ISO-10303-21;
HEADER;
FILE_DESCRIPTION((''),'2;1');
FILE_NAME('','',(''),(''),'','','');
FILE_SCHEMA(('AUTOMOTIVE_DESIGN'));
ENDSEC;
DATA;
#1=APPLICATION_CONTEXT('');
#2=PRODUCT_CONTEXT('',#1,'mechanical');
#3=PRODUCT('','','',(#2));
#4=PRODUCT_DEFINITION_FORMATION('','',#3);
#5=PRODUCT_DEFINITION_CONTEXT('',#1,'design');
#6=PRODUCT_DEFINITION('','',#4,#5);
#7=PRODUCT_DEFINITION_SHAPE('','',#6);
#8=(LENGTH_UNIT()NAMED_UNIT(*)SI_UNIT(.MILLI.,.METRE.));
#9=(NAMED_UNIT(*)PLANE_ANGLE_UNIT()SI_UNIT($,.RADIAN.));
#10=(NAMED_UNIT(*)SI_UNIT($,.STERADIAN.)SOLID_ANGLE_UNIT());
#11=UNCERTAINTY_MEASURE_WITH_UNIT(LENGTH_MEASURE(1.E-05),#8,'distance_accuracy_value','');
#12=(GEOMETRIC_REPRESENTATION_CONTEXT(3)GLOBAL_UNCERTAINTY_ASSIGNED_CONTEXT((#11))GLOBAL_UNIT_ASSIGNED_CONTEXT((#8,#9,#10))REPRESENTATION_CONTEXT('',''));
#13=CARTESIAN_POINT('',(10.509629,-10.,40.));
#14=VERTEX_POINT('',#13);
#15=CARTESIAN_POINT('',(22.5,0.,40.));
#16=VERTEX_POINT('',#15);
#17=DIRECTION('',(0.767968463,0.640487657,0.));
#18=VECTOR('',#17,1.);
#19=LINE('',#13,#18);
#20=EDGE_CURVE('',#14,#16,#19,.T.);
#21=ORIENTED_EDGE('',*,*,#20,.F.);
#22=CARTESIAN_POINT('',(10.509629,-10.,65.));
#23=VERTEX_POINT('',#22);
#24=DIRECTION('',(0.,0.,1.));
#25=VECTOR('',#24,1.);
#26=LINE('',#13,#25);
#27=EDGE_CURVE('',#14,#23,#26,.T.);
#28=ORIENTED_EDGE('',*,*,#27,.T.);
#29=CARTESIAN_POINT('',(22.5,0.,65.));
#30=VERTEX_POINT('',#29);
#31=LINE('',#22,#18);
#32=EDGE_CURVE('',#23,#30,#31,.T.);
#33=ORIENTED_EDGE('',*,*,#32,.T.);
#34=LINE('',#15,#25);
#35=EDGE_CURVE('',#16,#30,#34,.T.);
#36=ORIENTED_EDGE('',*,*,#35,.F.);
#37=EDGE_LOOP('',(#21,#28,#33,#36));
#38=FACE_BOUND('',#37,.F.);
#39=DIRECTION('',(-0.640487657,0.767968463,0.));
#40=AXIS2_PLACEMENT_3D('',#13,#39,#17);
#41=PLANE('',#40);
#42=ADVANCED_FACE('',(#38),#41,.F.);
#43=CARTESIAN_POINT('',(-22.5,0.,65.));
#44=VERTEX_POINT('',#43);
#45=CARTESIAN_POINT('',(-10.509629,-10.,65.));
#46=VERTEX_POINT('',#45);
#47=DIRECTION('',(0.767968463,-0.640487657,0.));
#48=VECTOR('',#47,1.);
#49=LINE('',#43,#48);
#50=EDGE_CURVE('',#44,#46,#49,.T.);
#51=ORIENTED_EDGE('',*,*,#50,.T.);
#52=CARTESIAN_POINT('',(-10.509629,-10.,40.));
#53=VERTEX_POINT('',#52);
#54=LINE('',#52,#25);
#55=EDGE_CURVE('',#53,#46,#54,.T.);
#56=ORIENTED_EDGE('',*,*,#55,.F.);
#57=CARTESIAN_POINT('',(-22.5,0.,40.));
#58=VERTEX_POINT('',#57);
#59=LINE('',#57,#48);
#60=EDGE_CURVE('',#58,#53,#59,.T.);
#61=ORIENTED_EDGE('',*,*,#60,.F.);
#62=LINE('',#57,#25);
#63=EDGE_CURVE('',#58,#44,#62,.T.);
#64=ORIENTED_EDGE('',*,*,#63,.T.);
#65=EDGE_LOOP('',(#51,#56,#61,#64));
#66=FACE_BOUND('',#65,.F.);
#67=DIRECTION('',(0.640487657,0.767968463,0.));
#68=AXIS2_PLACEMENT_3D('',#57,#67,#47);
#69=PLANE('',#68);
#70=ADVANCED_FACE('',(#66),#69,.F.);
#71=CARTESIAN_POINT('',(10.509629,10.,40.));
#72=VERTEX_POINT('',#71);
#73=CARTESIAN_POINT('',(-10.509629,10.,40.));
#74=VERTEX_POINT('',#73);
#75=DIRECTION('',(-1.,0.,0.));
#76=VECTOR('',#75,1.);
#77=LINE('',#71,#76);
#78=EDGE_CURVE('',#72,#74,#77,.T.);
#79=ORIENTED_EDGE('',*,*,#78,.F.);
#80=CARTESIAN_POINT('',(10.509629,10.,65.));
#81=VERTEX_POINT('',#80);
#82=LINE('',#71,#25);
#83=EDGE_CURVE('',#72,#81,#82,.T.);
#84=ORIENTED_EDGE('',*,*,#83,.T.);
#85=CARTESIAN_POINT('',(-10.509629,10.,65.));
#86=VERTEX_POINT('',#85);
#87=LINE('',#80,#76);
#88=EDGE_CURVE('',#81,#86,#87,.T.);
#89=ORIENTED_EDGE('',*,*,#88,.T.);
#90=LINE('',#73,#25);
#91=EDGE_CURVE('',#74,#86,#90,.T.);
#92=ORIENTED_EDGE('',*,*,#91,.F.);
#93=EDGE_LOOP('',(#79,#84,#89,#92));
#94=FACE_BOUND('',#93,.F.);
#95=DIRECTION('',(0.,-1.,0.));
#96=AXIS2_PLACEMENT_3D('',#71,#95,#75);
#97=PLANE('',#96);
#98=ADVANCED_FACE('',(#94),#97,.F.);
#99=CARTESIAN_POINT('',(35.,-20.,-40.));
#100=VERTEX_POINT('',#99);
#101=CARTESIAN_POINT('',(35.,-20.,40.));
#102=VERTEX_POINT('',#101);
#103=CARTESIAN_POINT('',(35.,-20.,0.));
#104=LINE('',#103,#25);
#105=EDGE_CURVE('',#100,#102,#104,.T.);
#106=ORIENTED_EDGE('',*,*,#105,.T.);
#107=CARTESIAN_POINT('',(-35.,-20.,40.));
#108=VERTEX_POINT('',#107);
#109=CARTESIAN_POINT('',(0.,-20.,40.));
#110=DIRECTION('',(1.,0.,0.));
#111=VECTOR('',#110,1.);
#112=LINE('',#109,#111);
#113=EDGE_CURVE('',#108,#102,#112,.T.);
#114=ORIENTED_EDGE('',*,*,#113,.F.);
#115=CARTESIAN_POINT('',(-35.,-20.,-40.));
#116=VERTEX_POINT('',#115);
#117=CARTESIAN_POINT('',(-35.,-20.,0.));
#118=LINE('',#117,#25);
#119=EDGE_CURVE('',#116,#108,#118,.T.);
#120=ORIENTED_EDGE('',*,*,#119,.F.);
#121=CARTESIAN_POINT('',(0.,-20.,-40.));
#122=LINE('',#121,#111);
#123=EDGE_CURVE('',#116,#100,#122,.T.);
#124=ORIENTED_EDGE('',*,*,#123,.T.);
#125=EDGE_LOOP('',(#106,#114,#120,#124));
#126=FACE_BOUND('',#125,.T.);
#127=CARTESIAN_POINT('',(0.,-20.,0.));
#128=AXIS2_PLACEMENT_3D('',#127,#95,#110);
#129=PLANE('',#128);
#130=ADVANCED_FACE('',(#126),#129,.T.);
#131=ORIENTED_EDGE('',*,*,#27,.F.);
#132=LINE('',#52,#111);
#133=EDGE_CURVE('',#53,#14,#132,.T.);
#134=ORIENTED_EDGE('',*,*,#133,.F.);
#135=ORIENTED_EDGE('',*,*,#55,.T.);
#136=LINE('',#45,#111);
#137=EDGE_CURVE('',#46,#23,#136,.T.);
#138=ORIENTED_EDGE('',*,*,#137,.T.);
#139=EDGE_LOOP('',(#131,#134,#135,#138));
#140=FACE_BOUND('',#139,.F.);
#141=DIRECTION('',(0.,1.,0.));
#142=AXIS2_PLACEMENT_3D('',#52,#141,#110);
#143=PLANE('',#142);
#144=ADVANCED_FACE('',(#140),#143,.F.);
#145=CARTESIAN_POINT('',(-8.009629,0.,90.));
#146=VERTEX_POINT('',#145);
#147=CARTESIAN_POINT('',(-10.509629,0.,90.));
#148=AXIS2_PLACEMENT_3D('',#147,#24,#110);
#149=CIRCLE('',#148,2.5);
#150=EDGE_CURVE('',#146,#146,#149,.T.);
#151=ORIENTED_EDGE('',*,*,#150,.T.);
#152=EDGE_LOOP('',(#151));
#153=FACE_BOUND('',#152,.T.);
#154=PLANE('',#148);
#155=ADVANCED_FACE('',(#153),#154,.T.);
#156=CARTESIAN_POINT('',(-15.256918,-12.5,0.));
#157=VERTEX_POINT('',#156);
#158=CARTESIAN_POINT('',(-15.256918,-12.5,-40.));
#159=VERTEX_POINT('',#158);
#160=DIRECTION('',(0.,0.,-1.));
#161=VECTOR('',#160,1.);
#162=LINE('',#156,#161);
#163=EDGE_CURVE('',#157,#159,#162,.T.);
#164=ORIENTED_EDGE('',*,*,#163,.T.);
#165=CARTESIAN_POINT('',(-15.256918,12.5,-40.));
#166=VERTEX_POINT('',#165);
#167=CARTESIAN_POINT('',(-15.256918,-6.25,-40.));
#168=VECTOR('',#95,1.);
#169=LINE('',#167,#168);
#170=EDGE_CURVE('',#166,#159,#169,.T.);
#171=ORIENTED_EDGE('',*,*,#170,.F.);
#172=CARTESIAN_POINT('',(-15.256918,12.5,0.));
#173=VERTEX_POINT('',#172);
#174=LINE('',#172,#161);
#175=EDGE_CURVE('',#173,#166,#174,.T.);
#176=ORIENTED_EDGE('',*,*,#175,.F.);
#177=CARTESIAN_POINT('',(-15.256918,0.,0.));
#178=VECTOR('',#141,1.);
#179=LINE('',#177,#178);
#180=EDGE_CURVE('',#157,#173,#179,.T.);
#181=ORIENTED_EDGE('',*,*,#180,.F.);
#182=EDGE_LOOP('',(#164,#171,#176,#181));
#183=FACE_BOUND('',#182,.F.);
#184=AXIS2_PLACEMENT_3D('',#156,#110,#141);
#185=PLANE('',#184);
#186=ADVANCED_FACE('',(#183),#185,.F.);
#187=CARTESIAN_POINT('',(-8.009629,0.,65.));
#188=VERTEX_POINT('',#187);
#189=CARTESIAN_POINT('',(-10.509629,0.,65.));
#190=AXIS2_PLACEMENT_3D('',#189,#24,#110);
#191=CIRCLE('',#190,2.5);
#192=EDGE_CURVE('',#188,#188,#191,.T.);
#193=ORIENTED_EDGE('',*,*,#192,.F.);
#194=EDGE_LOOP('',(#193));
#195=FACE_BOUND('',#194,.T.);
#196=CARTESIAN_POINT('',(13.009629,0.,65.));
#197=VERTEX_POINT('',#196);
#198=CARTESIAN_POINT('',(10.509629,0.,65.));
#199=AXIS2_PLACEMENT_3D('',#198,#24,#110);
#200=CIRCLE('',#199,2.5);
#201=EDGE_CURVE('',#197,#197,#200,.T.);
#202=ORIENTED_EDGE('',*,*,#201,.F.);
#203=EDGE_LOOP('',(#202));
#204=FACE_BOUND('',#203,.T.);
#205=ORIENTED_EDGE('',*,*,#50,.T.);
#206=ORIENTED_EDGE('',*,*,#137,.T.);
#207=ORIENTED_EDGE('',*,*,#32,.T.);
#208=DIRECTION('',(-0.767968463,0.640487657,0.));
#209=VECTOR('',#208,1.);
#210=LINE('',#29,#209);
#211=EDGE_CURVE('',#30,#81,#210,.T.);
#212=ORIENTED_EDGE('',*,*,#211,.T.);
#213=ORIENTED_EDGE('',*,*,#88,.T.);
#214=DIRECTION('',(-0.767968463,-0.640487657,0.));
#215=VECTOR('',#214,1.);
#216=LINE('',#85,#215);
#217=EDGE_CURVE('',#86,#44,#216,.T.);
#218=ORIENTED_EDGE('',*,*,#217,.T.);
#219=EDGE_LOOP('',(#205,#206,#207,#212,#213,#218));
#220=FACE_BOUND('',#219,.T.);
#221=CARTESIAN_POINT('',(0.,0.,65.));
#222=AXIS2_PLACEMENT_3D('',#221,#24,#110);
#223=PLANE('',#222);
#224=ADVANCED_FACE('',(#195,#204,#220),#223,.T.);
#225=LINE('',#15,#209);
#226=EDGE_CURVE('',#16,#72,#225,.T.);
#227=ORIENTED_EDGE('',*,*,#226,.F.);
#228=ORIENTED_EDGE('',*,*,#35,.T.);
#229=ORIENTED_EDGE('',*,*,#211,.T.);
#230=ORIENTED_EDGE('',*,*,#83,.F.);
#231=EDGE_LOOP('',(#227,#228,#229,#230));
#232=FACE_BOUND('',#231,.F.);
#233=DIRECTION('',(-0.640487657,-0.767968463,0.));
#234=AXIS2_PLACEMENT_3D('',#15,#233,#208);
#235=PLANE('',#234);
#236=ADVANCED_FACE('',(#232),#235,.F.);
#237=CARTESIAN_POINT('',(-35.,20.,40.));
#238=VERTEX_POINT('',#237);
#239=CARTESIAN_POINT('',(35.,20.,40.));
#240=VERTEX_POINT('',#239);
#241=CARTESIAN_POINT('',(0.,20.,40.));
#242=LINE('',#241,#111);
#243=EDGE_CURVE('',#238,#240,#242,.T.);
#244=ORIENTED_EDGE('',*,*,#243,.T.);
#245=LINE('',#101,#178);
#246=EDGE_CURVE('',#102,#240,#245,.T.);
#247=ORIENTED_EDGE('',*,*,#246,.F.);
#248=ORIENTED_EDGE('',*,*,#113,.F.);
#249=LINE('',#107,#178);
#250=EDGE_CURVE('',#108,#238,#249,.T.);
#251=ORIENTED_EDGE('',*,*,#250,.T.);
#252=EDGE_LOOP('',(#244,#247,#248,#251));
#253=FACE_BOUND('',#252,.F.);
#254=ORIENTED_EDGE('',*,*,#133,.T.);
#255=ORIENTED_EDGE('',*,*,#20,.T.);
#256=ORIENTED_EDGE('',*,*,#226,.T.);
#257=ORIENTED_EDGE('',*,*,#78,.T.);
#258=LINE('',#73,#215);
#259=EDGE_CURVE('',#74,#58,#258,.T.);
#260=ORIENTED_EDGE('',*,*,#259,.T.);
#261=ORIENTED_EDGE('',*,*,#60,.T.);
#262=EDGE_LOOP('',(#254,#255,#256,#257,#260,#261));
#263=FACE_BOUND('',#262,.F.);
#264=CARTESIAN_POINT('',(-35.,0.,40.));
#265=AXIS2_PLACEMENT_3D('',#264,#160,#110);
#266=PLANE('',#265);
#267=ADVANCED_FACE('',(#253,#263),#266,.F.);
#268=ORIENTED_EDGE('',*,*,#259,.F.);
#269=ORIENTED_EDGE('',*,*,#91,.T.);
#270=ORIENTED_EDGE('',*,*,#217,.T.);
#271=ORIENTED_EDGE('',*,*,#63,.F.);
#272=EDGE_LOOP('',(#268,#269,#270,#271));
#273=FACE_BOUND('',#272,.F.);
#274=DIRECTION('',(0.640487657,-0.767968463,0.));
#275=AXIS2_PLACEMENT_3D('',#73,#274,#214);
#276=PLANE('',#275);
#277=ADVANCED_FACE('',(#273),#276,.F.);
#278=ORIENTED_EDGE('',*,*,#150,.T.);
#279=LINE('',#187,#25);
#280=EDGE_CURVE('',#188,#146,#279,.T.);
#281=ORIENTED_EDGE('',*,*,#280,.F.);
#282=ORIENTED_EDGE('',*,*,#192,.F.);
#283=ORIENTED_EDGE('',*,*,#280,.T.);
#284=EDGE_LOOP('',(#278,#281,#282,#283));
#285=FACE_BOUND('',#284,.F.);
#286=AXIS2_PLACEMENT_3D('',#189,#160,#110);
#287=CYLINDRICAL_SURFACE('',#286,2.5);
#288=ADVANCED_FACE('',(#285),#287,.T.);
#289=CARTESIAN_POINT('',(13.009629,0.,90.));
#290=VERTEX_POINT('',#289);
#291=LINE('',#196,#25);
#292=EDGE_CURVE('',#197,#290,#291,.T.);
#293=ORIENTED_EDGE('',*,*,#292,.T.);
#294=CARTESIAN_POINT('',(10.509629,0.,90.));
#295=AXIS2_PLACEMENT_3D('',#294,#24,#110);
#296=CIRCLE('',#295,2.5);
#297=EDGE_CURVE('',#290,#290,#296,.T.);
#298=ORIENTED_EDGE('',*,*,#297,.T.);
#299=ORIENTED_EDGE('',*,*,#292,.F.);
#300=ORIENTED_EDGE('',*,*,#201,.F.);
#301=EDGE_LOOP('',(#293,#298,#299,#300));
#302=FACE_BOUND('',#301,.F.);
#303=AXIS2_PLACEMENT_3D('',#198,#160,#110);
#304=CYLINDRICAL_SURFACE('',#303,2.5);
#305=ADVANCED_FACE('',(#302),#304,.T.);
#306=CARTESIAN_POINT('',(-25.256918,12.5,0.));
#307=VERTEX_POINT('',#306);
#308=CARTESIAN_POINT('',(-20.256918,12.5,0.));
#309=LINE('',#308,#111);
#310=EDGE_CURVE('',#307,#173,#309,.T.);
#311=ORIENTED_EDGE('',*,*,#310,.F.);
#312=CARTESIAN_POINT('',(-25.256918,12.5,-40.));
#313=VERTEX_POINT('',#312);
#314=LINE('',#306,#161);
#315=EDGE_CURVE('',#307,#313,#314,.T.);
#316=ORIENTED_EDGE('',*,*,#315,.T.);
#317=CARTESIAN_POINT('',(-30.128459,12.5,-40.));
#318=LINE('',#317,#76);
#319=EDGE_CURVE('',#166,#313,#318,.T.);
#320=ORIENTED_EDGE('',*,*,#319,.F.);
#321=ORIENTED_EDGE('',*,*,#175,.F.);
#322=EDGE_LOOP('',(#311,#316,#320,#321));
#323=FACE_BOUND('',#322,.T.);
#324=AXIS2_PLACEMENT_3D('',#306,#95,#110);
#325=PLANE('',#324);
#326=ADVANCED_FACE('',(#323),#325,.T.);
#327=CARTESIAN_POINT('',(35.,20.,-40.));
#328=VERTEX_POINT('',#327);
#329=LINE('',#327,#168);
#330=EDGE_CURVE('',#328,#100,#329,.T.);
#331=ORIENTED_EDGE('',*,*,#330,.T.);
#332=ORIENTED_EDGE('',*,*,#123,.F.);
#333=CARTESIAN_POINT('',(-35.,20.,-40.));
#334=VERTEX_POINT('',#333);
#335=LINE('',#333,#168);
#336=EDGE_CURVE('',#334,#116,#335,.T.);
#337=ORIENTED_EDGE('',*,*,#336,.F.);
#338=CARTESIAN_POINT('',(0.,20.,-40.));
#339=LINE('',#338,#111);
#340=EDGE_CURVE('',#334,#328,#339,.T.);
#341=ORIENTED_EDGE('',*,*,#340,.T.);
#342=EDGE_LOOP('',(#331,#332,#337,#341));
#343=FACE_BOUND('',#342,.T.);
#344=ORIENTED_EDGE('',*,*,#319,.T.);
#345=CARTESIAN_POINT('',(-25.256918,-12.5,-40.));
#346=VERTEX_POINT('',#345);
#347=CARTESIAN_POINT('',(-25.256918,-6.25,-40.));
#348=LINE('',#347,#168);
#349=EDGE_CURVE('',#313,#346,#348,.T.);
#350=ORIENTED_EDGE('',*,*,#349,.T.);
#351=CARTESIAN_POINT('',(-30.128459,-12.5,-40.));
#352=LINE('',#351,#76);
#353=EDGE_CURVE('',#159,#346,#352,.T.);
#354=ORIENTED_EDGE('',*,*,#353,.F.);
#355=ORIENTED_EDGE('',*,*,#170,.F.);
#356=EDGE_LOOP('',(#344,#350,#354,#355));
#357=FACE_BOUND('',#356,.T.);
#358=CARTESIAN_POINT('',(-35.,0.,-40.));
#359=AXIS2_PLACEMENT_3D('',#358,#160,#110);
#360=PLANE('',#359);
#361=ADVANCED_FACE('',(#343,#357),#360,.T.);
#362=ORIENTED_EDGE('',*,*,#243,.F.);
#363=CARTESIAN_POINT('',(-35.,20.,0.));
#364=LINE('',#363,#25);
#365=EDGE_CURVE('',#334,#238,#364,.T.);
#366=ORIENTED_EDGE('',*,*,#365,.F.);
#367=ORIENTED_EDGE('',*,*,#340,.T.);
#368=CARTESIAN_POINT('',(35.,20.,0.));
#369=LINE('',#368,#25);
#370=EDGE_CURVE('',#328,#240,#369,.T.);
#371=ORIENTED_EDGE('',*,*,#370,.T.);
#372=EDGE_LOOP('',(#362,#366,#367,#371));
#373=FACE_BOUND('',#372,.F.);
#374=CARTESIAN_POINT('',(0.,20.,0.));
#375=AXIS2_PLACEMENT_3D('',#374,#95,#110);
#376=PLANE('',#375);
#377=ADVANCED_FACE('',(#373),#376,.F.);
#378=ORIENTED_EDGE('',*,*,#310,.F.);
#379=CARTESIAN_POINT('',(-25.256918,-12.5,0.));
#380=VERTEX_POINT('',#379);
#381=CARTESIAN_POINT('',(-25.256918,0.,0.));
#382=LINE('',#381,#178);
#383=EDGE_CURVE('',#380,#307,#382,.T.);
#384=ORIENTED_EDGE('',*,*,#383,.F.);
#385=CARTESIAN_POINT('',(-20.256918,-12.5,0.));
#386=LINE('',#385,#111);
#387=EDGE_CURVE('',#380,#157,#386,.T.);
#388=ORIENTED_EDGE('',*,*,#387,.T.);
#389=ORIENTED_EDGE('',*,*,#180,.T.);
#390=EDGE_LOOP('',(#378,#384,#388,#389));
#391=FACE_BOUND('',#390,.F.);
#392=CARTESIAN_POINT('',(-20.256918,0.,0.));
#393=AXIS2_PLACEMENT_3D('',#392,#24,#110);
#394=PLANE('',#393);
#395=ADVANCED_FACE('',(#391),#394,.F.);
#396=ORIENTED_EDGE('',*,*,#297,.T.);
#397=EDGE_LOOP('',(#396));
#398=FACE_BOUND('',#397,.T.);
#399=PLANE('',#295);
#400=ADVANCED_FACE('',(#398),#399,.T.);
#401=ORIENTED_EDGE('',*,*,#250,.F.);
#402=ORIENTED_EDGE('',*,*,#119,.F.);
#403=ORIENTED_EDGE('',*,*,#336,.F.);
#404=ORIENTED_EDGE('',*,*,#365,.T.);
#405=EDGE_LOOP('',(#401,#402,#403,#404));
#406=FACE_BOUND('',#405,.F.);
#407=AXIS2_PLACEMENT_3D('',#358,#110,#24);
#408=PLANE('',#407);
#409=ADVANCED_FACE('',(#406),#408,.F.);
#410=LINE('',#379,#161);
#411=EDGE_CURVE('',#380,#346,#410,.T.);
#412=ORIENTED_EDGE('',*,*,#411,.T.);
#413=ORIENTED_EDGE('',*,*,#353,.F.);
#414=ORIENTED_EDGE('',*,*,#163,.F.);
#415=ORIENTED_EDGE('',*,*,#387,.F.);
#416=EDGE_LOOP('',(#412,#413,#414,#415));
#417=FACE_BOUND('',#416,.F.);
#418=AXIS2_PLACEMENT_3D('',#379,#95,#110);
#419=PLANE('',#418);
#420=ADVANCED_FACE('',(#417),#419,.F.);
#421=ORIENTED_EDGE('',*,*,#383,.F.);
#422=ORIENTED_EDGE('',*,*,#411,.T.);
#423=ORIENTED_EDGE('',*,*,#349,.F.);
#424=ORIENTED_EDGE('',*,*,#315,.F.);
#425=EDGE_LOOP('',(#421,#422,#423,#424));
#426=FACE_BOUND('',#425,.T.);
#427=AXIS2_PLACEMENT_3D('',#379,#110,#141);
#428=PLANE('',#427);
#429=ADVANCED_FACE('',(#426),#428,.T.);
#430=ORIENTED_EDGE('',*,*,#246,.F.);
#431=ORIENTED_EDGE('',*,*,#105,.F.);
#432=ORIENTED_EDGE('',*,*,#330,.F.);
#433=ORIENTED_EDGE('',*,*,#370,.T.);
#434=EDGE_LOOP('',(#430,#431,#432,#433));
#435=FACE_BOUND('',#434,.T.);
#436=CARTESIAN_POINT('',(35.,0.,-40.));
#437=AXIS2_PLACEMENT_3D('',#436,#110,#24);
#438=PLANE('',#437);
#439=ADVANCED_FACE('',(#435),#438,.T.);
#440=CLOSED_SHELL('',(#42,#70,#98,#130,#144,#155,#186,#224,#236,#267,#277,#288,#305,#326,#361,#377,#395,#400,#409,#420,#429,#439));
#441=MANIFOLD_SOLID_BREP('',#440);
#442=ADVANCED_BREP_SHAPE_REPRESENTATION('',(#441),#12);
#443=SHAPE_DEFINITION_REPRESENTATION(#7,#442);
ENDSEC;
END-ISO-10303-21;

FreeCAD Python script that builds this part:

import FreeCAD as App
import Part
import Sketcher


def add_polygon(sketch, points):
    """Adds a closed chain of lines whose ends are joined by coincident constraints."""
    first, n = sketch.GeometryCount, len(points)
    for a, b in zip(points, points[1:] + points[:1]):
        sketch.addGeometry(Part.LineSegment(App.Vector(*a, 0), App.Vector(*b, 0)), False)
    for i in range(n):
        sketch.addConstraint(Sketcher.Constraint("Coincident", first + i, 2, first + (i + 1) % n, 1))

doc = App.newDocument("Part")
params = doc.addObject("Spreadsheet::Sheet", "Params")
for row, (alias, value) in enumerate([
    ("sketch1_width", "70 mm"),
    ("sketch1_height", "80 mm"),
    ("pad1_length", "40 mm"),
    ("pad2_length", "25 mm"),
    ("sketch3_diameter", "5 mm"),
    ("pad3_length", "25 mm"),
    ("sketch4_width", "10 mm"),
    ("sketch4_height", "25 mm"),
    ("pocket1_length", "79.4 mm"),
], start=1):
    params.set(f"A{row}", alias)
    params.set(f"B{row}", "=" + value)
    params.setAlias(f"B{row}", alias)

body = doc.addObject("PartDesign::Body", "Body")

sketch1 = doc.addObject("Sketcher::SketchObject", "Sketch")
body.addObject(sketch1)
sketch1.AttachmentSupport = (doc.XZ_Plane, [""])
sketch1.MapMode = "FlatFace"
add_polygon(sketch1, [(-35, 40), (-35, -40), (35, -40), (35, 40)])
sketch1.addConstraint([
    Sketcher.Constraint("Vertical", 0),
    Sketcher.Constraint("Horizontal", 1),
    Sketcher.Constraint("Vertical", 2),
    Sketcher.Constraint("Horizontal", 3),
    Sketcher.Constraint("Symmetric", 0, 2, 2, 2, -1, 1),
    Sketcher.Constraint("DistanceX", 1, 1, 1, 2, 70.0),
    Sketcher.Constraint("DistanceY", 0, 2, 0, 1, 80.0),
])
sketch1.setExpression("Constraints[9]", "Params.sketch1_width")
sketch1.setExpression("Constraints[10]", "Params.sketch1_height")
pad1 = doc.addObject("PartDesign::Pad", "Pad")
body.addObject(pad1)
pad1.Profile = sketch1
pad1.setExpression("Length", "Params.pad1_length")
pad1.Midplane = True

sketch2 = doc.addObject("Sketcher::SketchObject", "Sketch001")
body.addObject(sketch2)
sketch2.AttachmentSupport = (doc.XY_Plane, [""])
sketch2.MapMode = "FlatFace"
sketch2.AttachmentOffset = App.Placement(App.Vector(0, 0, 40), App.Rotation())
add_polygon(sketch2, [(22.5, 0), (10.509629, 10), (-10.509629, 10), (-22.5, 0), (-10.509629, -10), (10.509629, -10)])
sketch2.addConstraint([
    Sketcher.Constraint("Horizontal", 1),
    Sketcher.Constraint("Horizontal", 4),
    Sketcher.Constraint("Symmetric", 0, 2, 3, 2, -1, 1),
    Sketcher.Constraint("Symmetric", 2, 2, 5, 2, -1, 1),
    Sketcher.Constraint("PointOnObject", 2, 2, -1),
    Sketcher.Constraint("Parallel", 2, 5),
    Sketcher.Constraint("Vertical", 1, 2, 3, 2),
    Sketcher.Constraint("DistanceY", -1, 1, 0, 2, 10.0),
    Sketcher.Constraint("DistanceX", 2, 2, 5, 2, 45.0),
    Sketcher.Constraint("DistanceX", 1, 2, 1, 1, 21.019258),
])
pad2 = doc.addObject("PartDesign::Pad", "Pad001")
body.addObject(pad2)
pad2.Profile = sketch2
pad2.setExpression("Length", "Params.pad2_length")

sketch3 = doc.addObject("Sketcher::SketchObject", "Sketch002")
body.addObject(sketch3)
sketch3.AttachmentSupport = (doc.XY_Plane, [""])
sketch3.MapMode = "FlatFace"
sketch3.AttachmentOffset = App.Placement(App.Vector(0, 0, 65), App.Rotation())
sketch3.addGeometry([
    Part.Circle(App.Vector(-10.509629, 0, 0), App.Vector(0, 0, 1), 2.5),
    Part.Circle(App.Vector(10.509629, 0, 0), App.Vector(0, 0, 1), 2.5),
], False)
sketch3.addConstraint([
    Sketcher.Constraint("Equal", 0, 1),
    Sketcher.Constraint("Symmetric", 0, 3, 1, 3, -1, 1),
    Sketcher.Constraint("PointOnObject", 0, 3, -1),
    Sketcher.Constraint("Diameter", 0, 5.0),
    Sketcher.Constraint("DistanceX", 0, 3, -1, 1, 10.509629),
])
sketch3.setExpression("Constraints[3]", "Params.sketch3_diameter")
pad3 = doc.addObject("PartDesign::Pad", "Pad002")
body.addObject(pad3)
pad3.Profile = sketch3
pad3.setExpression("Length", "Params.pad3_length")

sketch4 = doc.addObject("Sketcher::SketchObject", "Sketch003")
body.addObject(sketch4)
sketch4.AttachmentSupport = (doc.XY_Plane, [""])
sketch4.MapMode = "FlatFace"
add_polygon(sketch4, [(-25.256918, 12.5), (-25.256918, -12.5), (-15.256918, -12.5), (-15.256918, 12.5)])
sketch4.addConstraint([
    Sketcher.Constraint("Vertical", 0),
    Sketcher.Constraint("Horizontal", 1),
    Sketcher.Constraint("Vertical", 2),
    Sketcher.Constraint("Horizontal", 3),
    Sketcher.Constraint("DistanceX", 1, 1, 1, 2, 10.0),
    Sketcher.Constraint("DistanceY", 0, 2, 0, 1, 25.0),
    Sketcher.Constraint("DistanceY", 0, 2, -1, 1, 12.5),
    Sketcher.Constraint("DistanceX", 1, 2, -1, 1, 15.256918),
])
sketch4.setExpression("Constraints[8]", "Params.sketch4_width")
sketch4.setExpression("Constraints[9]", "Params.sketch4_height")
pocket1 = doc.addObject("PartDesign::Pocket", "Pocket")
body.addObject(pocket1)
pocket1.Profile = sketch4
pocket1.setExpression("Length", "Params.pocket1_length")

doc.recompute()
